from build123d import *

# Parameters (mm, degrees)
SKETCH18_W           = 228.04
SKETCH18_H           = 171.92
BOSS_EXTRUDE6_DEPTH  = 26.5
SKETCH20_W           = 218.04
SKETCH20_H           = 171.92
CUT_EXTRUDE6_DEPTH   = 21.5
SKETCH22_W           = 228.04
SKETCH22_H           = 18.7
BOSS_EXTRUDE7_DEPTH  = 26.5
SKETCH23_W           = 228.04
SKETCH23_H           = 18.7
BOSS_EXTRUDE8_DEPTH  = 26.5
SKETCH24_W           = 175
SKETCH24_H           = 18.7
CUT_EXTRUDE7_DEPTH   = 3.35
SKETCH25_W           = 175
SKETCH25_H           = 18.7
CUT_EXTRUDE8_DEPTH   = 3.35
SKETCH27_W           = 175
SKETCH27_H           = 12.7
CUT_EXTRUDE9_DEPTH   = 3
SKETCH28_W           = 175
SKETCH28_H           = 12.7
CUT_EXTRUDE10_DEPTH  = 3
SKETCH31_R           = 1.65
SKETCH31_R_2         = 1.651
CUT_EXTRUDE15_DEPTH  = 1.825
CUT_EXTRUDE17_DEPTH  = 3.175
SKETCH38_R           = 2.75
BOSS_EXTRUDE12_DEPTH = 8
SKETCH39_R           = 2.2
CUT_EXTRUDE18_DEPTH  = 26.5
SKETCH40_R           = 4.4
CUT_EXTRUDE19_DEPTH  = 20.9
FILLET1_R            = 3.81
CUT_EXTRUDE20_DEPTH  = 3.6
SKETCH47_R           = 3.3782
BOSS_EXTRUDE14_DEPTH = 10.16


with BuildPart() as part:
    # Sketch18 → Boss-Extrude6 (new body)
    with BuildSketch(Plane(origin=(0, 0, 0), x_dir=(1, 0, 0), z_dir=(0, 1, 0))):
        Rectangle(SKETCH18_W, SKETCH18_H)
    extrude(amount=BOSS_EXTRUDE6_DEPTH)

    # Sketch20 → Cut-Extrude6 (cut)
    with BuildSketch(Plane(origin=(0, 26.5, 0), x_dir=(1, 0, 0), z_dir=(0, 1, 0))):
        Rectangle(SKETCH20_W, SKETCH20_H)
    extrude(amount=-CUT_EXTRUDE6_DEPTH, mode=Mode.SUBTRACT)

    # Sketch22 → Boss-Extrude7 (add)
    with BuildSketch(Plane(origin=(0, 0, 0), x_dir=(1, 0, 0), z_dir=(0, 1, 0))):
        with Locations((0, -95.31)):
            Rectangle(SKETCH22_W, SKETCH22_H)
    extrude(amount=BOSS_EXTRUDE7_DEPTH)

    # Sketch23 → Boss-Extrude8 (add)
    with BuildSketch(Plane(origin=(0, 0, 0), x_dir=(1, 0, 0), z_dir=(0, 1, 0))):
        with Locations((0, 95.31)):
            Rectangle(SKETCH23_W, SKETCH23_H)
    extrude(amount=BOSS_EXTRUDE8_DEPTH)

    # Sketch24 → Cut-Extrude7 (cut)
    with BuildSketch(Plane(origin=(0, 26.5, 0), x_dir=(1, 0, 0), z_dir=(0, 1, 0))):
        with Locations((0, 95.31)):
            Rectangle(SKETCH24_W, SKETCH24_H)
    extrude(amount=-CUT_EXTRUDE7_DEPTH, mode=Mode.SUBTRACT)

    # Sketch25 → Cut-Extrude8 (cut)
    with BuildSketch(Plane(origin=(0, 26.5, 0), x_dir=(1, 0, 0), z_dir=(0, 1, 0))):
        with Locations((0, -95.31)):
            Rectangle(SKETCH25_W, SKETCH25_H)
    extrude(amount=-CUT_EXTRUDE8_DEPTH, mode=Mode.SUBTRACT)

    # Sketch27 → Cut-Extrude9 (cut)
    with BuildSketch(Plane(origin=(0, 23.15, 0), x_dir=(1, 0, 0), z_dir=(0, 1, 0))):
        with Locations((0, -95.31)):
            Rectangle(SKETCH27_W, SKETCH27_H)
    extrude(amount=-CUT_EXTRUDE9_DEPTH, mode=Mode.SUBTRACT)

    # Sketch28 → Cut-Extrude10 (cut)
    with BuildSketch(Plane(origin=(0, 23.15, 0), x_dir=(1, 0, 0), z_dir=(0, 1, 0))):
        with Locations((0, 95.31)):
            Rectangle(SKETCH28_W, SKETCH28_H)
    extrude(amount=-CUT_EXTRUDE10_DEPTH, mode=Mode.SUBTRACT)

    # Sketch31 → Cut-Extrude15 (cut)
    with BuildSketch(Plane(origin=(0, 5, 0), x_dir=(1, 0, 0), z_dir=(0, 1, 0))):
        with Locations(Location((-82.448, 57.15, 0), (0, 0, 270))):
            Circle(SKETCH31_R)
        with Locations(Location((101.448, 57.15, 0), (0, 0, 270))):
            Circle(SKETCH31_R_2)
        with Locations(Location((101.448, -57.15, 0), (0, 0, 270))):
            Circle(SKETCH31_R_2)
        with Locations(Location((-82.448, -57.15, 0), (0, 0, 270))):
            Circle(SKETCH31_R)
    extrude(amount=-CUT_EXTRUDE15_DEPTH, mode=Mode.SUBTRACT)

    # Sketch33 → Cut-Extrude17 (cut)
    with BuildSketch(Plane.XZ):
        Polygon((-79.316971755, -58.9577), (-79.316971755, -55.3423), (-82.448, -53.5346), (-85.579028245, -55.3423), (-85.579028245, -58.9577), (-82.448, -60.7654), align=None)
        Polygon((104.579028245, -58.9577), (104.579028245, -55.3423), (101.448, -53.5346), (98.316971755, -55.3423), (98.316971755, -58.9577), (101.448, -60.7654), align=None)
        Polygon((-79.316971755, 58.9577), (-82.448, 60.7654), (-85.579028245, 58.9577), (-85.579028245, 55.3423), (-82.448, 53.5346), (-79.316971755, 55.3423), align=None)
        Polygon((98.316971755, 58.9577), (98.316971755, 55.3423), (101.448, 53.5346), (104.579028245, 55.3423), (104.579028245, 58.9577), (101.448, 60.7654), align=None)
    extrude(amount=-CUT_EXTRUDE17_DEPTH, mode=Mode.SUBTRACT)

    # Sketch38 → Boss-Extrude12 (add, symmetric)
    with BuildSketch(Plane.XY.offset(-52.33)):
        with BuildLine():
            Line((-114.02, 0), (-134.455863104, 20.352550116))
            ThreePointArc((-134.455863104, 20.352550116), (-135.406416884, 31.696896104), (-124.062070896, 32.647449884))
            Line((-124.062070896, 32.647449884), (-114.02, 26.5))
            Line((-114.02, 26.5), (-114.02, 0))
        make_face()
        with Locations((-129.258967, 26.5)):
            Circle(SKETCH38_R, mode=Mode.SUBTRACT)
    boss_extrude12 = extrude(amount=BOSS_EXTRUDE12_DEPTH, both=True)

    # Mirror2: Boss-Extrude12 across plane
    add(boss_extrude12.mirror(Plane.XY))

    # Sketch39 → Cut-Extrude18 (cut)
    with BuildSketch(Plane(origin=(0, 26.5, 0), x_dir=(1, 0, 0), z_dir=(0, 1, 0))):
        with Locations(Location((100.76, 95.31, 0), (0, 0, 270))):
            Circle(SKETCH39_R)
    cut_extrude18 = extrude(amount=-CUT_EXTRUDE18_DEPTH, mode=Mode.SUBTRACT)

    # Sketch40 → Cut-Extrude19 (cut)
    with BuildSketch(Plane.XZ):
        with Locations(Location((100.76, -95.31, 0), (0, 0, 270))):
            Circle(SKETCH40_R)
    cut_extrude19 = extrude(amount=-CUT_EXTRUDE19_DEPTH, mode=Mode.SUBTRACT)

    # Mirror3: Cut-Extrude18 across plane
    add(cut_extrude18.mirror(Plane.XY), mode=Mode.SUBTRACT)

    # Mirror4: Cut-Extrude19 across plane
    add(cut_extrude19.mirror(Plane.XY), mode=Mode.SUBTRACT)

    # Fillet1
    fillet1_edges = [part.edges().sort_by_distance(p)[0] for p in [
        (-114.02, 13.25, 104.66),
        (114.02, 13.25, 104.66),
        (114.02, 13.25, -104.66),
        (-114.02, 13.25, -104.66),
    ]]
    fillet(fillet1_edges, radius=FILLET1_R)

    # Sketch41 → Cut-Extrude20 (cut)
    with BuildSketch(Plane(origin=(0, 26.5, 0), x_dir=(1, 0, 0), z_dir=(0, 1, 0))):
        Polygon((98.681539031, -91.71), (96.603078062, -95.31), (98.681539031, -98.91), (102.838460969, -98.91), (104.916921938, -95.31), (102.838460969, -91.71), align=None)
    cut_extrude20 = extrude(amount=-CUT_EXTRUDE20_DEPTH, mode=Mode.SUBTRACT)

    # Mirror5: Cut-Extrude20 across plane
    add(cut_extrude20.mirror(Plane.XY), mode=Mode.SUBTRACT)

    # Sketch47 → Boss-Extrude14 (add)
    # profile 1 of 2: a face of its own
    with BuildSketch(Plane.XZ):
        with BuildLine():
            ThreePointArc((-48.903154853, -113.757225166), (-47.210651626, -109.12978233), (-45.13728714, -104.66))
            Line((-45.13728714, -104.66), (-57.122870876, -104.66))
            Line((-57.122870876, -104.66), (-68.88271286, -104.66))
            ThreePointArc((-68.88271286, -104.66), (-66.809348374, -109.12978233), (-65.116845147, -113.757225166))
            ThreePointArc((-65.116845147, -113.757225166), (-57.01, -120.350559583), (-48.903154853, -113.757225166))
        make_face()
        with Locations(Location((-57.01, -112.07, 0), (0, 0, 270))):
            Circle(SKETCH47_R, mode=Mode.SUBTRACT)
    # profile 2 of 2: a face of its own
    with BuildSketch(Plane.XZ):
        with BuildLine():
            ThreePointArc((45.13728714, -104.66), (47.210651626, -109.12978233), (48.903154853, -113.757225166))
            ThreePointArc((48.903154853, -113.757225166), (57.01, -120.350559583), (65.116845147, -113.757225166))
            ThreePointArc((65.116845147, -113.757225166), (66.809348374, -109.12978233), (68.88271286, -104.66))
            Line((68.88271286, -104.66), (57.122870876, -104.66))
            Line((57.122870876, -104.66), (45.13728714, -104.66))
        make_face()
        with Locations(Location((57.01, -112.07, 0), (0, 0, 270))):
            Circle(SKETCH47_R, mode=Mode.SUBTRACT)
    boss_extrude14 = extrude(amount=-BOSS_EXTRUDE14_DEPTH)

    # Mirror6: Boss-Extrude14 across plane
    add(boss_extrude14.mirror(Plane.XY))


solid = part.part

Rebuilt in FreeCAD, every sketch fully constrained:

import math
import FreeCAD as App
import Part
import Sketcher
Q = App.Units.Quantity


def edges_at(feature, points):
    """Names of the edges that pass closest to the given points."""
    edges = feature.Shape.Edges
    near = lambda p: min(range(len(edges)), key=lambda i: edges[i].distToShape(Part.Vertex(*p))[0])
    return sorted({f"Edge{near(p) + 1}" for p in points})

doc = App.newDocument("Part")
body = doc.addObject("PartDesign::Body", "Body")

sketch1 = body.newObject("Sketcher::SketchObject", "Sketch")
sketch1.AttachmentSupport = (doc.getObject("XZ_Plane"), [""])
sketch1.MapMode = "FlatFace"
sketch1.addGeometry([
    Part.LineSegment(App.Vector(-114.02, -85.96, 0), App.Vector(-114.02, 85.96, 0)),
    Part.LineSegment(App.Vector(-114.02, 85.96, 0), App.Vector(114.02, 85.96, 0)),
    Part.LineSegment(App.Vector(114.02, 85.96, 0), App.Vector(114.02, -85.96, 0)),
    Part.LineSegment(App.Vector(114.02, -85.96, 0), App.Vector(-114.02, -85.96, 0)),
], False)
sketch1.addConstraint([
    Sketcher.Constraint("Coincident", 0, 2, 1, 1),
    Sketcher.Constraint("Coincident", 1, 2, 2, 1),
    Sketcher.Constraint("Coincident", 2, 2, 3, 1),
    Sketcher.Constraint("Coincident", 3, 2, 0, 1),
    Sketcher.Constraint("Vertical", 0),
    Sketcher.Constraint("Horizontal", 1),
    Sketcher.Constraint("Vertical", 2),
    Sketcher.Constraint("Horizontal", 3),
    Sketcher.Constraint("Symmetric", 0, 2, 2, 2, -1, 1),
    Sketcher.Constraint("DistanceX", 1, 1, 1, 2, 228.04),
    Sketcher.Constraint("DistanceY", 0, 1, 0, 2, 171.92),
])
pad1 = body.newObject("PartDesign::Pad", "Pad")
pad1.Profile = sketch1
pad1.Length = 26.5
pad1.Reversed = True

sketch2 = body.newObject("Sketcher::SketchObject", "Sketch001")
sketch2.AttachmentSupport = (doc.getObject("XZ_Plane"), [""])
sketch2.MapMode = "FlatFace"
sketch2.AttachmentOffset = App.Placement(App.Vector(0, 0, -26.5), App.Rotation())
sketch2.addGeometry([
    Part.LineSegment(App.Vector(-109.02, -85.96, 0), App.Vector(-109.02, 85.96, 0)),
    Part.LineSegment(App.Vector(-109.02, 85.96, 0), App.Vector(109.02, 85.96, 0)),
    Part.LineSegment(App.Vector(109.02, 85.96, 0), App.Vector(109.02, -85.96, 0)),
    Part.LineSegment(App.Vector(109.02, -85.96, 0), App.Vector(-109.02, -85.96, 0)),
], False)
sketch2.addConstraint([
    Sketcher.Constraint("Coincident", 0, 2, 1, 1),
    Sketcher.Constraint("Coincident", 1, 2, 2, 1),
    Sketcher.Constraint("Coincident", 2, 2, 3, 1),
    Sketcher.Constraint("Coincident", 3, 2, 0, 1),
    Sketcher.Constraint("Vertical", 0),
    Sketcher.Constraint("Horizontal", 1),
    Sketcher.Constraint("Vertical", 2),
    Sketcher.Constraint("Horizontal", 3),
    Sketcher.Constraint("Symmetric", 0, 2, 2, 2, -1, 1),
    Sketcher.Constraint("DistanceX", 1, 1, 1, 2, 218.04),
    Sketcher.Constraint("DistanceY", 0, 1, 0, 2, 171.92),
])
pocket1 = body.newObject("PartDesign::Pocket", "Pocket")
pocket1.Profile = sketch2
pocket1.Length = 21.5
pocket1.Reversed = True

sketch3 = body.newObject("Sketcher::SketchObject", "Sketch002")
sketch3.AttachmentSupport = (doc.getObject("XZ_Plane"), [""])
sketch3.MapMode = "FlatFace"
sketch3.addGeometry([
    Part.LineSegment(App.Vector(-114.02, 85.96, 0), App.Vector(-114.02, 104.66, 0)),
    Part.LineSegment(App.Vector(-114.02, 104.66, 0), App.Vector(114.02, 104.66, 0)),
    Part.LineSegment(App.Vector(114.02, 104.66, 0), App.Vector(114.02, 85.96, 0)),
    Part.LineSegment(App.Vector(114.02, 85.96, 0), App.Vector(-114.02, 85.96, 0)),
], False)
sketch3.addConstraint([
    Sketcher.Constraint("Coincident", 0, 2, 1, 1),
    Sketcher.Constraint("Coincident", 1, 2, 2, 1),
    Sketcher.Constraint("Coincident", 2, 2, 3, 1),
    Sketcher.Constraint("Coincident", 3, 2, 0, 1),
    Sketcher.Constraint("Vertical", 0),
    Sketcher.Constraint("Horizontal", 1),
    Sketcher.Constraint("Vertical", 2),
    Sketcher.Constraint("Horizontal", 3),
    Sketcher.Constraint("DistanceY", 0, 1, 0, 2, 18.7),
    Sketcher.Constraint("DistanceX", 1, 1, 1, 2, 228.04),
    Sketcher.Constraint("DistanceX", 0, 2, -1, 1, 114.02),
    Sketcher.Constraint("DistanceY", -1, 1, 0, 2, 104.66),
])
pad2 = body.newObject("PartDesign::Pad", "Pad001")
pad2.Profile = sketch3
pad2.Length = 26.5
pad2.Reversed = True

sketch4 = body.newObject("Sketcher::SketchObject", "Sketch003")
sketch4.AttachmentSupport = (doc.getObject("XZ_Plane"), [""])
sketch4.MapMode = "FlatFace"
sketch4.addGeometry([
    Part.LineSegment(App.Vector(-114.02, -104.66, 0), App.Vector(-114.02, -85.96, 0)),
    Part.LineSegment(App.Vector(-114.02, -85.96, 0), App.Vector(114.02, -85.96, 0)),
    Part.LineSegment(App.Vector(114.02, -85.96, 0), App.Vector(114.02, -104.66, 0)),
    Part.LineSegment(App.Vector(114.02, -104.66, 0), App.Vector(-114.02, -104.66, 0)),
], False)
sketch4.addConstraint([
    Sketcher.Constraint("Coincident", 0, 2, 1, 1),
    Sketcher.Constraint("Coincident", 1, 2, 2, 1),
    Sketcher.Constraint("Coincident", 2, 2, 3, 1),
    Sketcher.Constraint("Coincident", 3, 2, 0, 1),
    Sketcher.Constraint("Vertical", 0),
    Sketcher.Constraint("Horizontal", 1),
    Sketcher.Constraint("Vertical", 2),
    Sketcher.Constraint("Horizontal", 3),
    Sketcher.Constraint("DistanceY", 0, 1, 0, 2, 18.7),
    Sketcher.Constraint("DistanceX", 1, 1, 1, 2, 228.04),
    Sketcher.Constraint("DistanceX", 0, 2, -1, 1, 114.02),
    Sketcher.Constraint("DistanceY", 0, 2, -1, 1, 85.96),
])
pad3 = body.newObject("PartDesign::Pad", "Pad002")
pad3.Profile = sketch4
pad3.Length = 26.5
pad3.Reversed = True

sketch5 = body.newObject("Sketcher::SketchObject", "Sketch004")
sketch5.AttachmentSupport = (doc.getObject("XZ_Plane"), [""])
sketch5.MapMode = "FlatFace"
sketch5.AttachmentOffset = App.Placement(App.Vector(0, 0, -26.5), App.Rotation())
sketch5.addGeometry([
    Part.LineSegment(App.Vector(-87.5, -104.66, 0), App.Vector(-87.5, -85.96, 0)),
    Part.LineSegment(App.Vector(-87.5, -85.96, 0), App.Vector(87.5, -85.96, 0)),
    Part.LineSegment(App.Vector(87.5, -85.96, 0), App.Vector(87.5, -104.66, 0)),
    Part.LineSegment(App.Vector(87.5, -104.66, 0), App.Vector(-87.5, -104.66, 0)),
], False)
sketch5.addConstraint([
    Sketcher.Constraint("Coincident", 0, 2, 1, 1),
    Sketcher.Constraint("Coincident", 1, 2, 2, 1),
    Sketcher.Constraint("Coincident", 2, 2, 3, 1),
    Sketcher.Constraint("Coincident", 3, 2, 0, 1),
    Sketcher.Constraint("Vertical", 0),
    Sketcher.Constraint("Horizontal", 1),
    Sketcher.Constraint("Vertical", 2),
    Sketcher.Constraint("Horizontal", 3),
    Sketcher.Constraint("DistanceX", 1, 1, 1, 2, 175.0),
    Sketcher.Constraint("DistanceY", 0, 1, 0, 2, 18.7),
    Sketcher.Constraint("DistanceX", 0, 2, -1, 1, 87.5),
    Sketcher.Constraint("DistanceY", 0, 2, -1, 1, 85.96),
])
pocket2 = body.newObject("PartDesign::Pocket", "Pocket001")
pocket2.Profile = sketch5
pocket2.Length = 3.35
pocket2.Reversed = True

sketch6 = body.newObject("Sketcher::SketchObject", "Sketch005")
sketch6.AttachmentSupport = (doc.getObject("XZ_Plane"), [""])
sketch6.MapMode = "FlatFace"
sketch6.AttachmentOffset = App.Placement(App.Vector(0, 0, -26.5), App.Rotation())
sketch6.addGeometry([
    Part.LineSegment(App.Vector(-87.5, 85.96, 0), App.Vector(-87.5, 104.66, 0)),
    Part.LineSegment(App.Vector(-87.5, 104.66, 0), App.Vector(87.5, 104.66, 0)),
    Part.LineSegment(App.Vector(87.5, 104.66, 0), App.Vector(87.5, 85.96, 0)),
    Part.LineSegment(App.Vector(87.5, 85.96, 0), App.Vector(-87.5, 85.96, 0)),
], False)
sketch6.addConstraint([
    Sketcher.Constraint("Coincident", 0, 2, 1, 1),
    Sketcher.Constraint("Coincident", 1, 2, 2, 1),
    Sketcher.Constraint("Coincident", 2, 2, 3, 1),
    Sketcher.Constraint("Coincident", 3, 2, 0, 1),
    Sketcher.Constraint("Vertical", 0),
    Sketcher.Constraint("Horizontal", 1),
    Sketcher.Constraint("Vertical", 2),
    Sketcher.Constraint("Horizontal", 3),
    Sketcher.Constraint("DistanceX", 1, 1, 1, 2, 175.0),
    Sketcher.Constraint("DistanceY", 0, 1, 0, 2, 18.7),
    Sketcher.Constraint("DistanceX", 0, 2, -1, 1, 87.5),
    Sketcher.Constraint("DistanceY", -1, 1, 0, 2, 104.66),
])
pocket3 = body.newObject("PartDesign::Pocket", "Pocket002")
pocket3.Profile = sketch6
pocket3.Length = 3.35
pocket3.Reversed = True

sketch7 = body.newObject("Sketcher::SketchObject", "Sketch006")
sketch7.AttachmentSupport = (doc.getObject("XZ_Plane"), [""])
sketch7.MapMode = "FlatFace"
sketch7.AttachmentOffset = App.Placement(App.Vector(0, 0, -23.15), App.Rotation())
sketch7.addGeometry([
    Part.LineSegment(App.Vector(-87.5, 88.96, 0), App.Vector(-87.5, 101.66, 0)),
    Part.LineSegment(App.Vector(-87.5, 101.66, 0), App.Vector(87.5, 101.66, 0)),
    Part.LineSegment(App.Vector(87.5, 101.66, 0), App.Vector(87.5, 88.96, 0)),
    Part.LineSegment(App.Vector(87.5, 88.96, 0), App.Vector(-87.5, 88.96, 0)),
], False)
sketch7.addConstraint([
    Sketcher.Constraint("Coincident", 0, 2, 1, 1),
    Sketcher.Constraint("Coincident", 1, 2, 2, 1),
    Sketcher.Constraint("Coincident", 2, 2, 3, 1),
    Sketcher.Constraint("Coincident", 3, 2, 0, 1),
    Sketcher.Constraint("Vertical", 0),
    Sketcher.Constraint("Horizontal", 1),
    Sketcher.Constraint("Vertical", 2),
    Sketcher.Constraint("Horizontal", 3),
    Sketcher.Constraint("DistanceX", 1, 1, 1, 2, 175.0),
    Sketcher.Constraint("DistanceY", 0, 1, 0, 2, 12.7),
    Sketcher.Constraint("DistanceX", 0, 2, -1, 1, 87.5),
    Sketcher.Constraint("DistanceY", -1, 1, 0, 2, 101.66),
])
pocket4 = body.newObject("PartDesign::Pocket", "Pocket003")
pocket4.Profile = sketch7
pocket4.Length = 3
pocket4.Reversed = True

sketch8 = body.newObject("Sketcher::SketchObject", "Sketch007")
sketch8.AttachmentSupport = (doc.getObject("XZ_Plane"), [""])
sketch8.MapMode = "FlatFace"
sketch8.AttachmentOffset = App.Placement(App.Vector(0, 0, -23.15), App.Rotation())
sketch8.addGeometry([
    Part.LineSegment(App.Vector(-87.5, -101.66, 0), App.Vector(-87.5, -88.96, 0)),
    Part.LineSegment(App.Vector(-87.5, -88.96, 0), App.Vector(87.5, -88.96, 0)),
    Part.LineSegment(App.Vector(87.5, -88.96, 0), App.Vector(87.5, -101.66, 0)),
    Part.LineSegment(App.Vector(87.5, -101.66, 0), App.Vector(-87.5, -101.66, 0)),
], False)
sketch8.addConstraint([
    Sketcher.Constraint("Coincident", 0, 2, 1, 1),
    Sketcher.Constraint("Coincident", 1, 2, 2, 1),
    Sketcher.Constraint("Coincident", 2, 2, 3, 1),
    Sketcher.Constraint("Coincident", 3, 2, 0, 1),
    Sketcher.Constraint("Vertical", 0),
    Sketcher.Constraint("Horizontal", 1),
    Sketcher.Constraint("Vertical", 2),
    Sketcher.Constraint("Horizontal", 3),
    Sketcher.Constraint("DistanceX", 1, 1, 1, 2, 175.0),
    Sketcher.Constraint("DistanceY", 0, 1, 0, 2, 12.7),
    Sketcher.Constraint("DistanceX", 0, 2, -1, 1, 87.5),
    Sketcher.Constraint("DistanceY", 0, 2, -1, 1, 88.96),
])
pocket5 = body.newObject("PartDesign::Pocket", "Pocket004")
pocket5.Profile = sketch8
pocket5.Length = 3
pocket5.Reversed = True

sketch9 = body.newObject("Sketcher::SketchObject", "Sketch008")
sketch9.AttachmentSupport = (doc.getObject("XZ_Plane"), [""])
sketch9.MapMode = "FlatFace"
sketch9.AttachmentOffset = App.Placement(App.Vector(0, 0, -5), App.Rotation())
sketch9.addGeometry([
    Part.Circle(App.Vector(-82.448, -57.15, 0), App.Vector(0, 0, 1), 1.65),
    Part.Circle(App.Vector(101.448, -57.15, 0), App.Vector(0, 0, 1), 1.651),
    Part.Circle(App.Vector(101.448, 57.15, 0), App.Vector(0, 0, 1), 1.651),
    Part.Circle(App.Vector(-82.448, 57.15, 0), App.Vector(0, 0, 1), 1.65),
], False)
sketch9.addConstraint([
    Sketcher.Constraint("Equal", 1, 2),
    Sketcher.Constraint("Equal", 0, 3),
    Sketcher.Constraint("Symmetric", 1, 3, 2, 3, -1),
    Sketcher.Constraint("Symmetric", 0, 3, 3, 3, -1),
    Sketcher.Constraint("Horizontal", 0, 3, 1, 3),
    Sketcher.Constraint("Diameter", 0, 3.3),
    Sketcher.Constraint("Diameter", 1, 3.302),
    Sketcher.Constraint("DistanceY", 1, 3, 2, 3, 114.3),
    Sketcher.Constraint("DistanceX", 0, 3, -1, 1, 82.448),
    Sketcher.Constraint("DistanceX", -1, 1, 1, 3, 101.448),
])
pocket6 = body.newObject("PartDesign::Pocket", "Pocket005")
pocket6.Profile = sketch9
pocket6.Length = 1.825
pocket6.Reversed = True

sketch10 = body.newObject("Sketcher::SketchObject", "Sketch009")
sketch10.AttachmentSupport = (doc.getObject("XZ_Plane"), [""])
sketch10.MapMode = "FlatFace"
sketch10.addGeometry([
    Part.LineSegment(App.Vector(-79.316972, -58.9577, 0), App.Vector(-79.316972, -55.3423, 0)),
    Part.LineSegment(App.Vector(-79.316972, -55.3423, 0), App.Vector(-82.448, -53.5346, 0)),
    Part.LineSegment(App.Vector(-82.448, -53.5346, 0), App.Vector(-85.579028, -55.3423, 0)),
    Part.LineSegment(App.Vector(-85.579028, -55.3423, 0), App.Vector(-85.579028, -58.9577, 0)),
    Part.LineSegment(App.Vector(-85.579028, -58.9577, 0), App.Vector(-82.448, -60.7654, 0)),
    Part.LineSegment(App.Vector(-82.448, -60.7654, 0), App.Vector(-79.316972, -58.9577, 0)),
    Part.LineSegment(App.Vector(104.579028, -58.9577, 0), App.Vector(104.579028, -55.3423, 0)),
    Part.LineSegment(App.Vector(104.579028, -55.3423, 0), App.Vector(101.448, -53.5346, 0)),
    Part.LineSegment(App.Vector(101.448, -53.5346, 0), App.Vector(98.316972, -55.3423, 0)),
    Part.LineSegment(App.Vector(98.316972, -55.3423, 0), App.Vector(98.316972, -58.9577, 0)),
    Part.LineSegment(App.Vector(98.316972, -58.9577, 0), App.Vector(101.448, -60.7654, 0)),
    Part.LineSegment(App.Vector(101.448, -60.7654, 0), App.Vector(104.579028, -58.9577, 0)),
    Part.LineSegment(App.Vector(-79.316972, 58.9577, 0), App.Vector(-82.448, 60.7654, 0)),
    Part.LineSegment(App.Vector(-82.448, 60.7654, 0), App.Vector(-85.579028, 58.9577, 0)),
    Part.LineSegment(App.Vector(-85.579028, 58.9577, 0), App.Vector(-85.579028, 55.3423, 0)),
    Part.LineSegment(App.Vector(-85.579028, 55.3423, 0), App.Vector(-82.448, 53.5346, 0)),
    Part.LineSegment(App.Vector(-82.448, 53.5346, 0), App.Vector(-79.316972, 55.3423, 0)),
    Part.LineSegment(App.Vector(-79.316972, 55.3423, 0), App.Vector(-79.316972, 58.9577, 0)),
    Part.LineSegment(App.Vector(98.316972, 58.9577, 0), App.Vector(98.316972, 55.3423, 0)),
    Part.LineSegment(App.Vector(98.316972, 55.3423, 0), App.Vector(101.448, 53.5346, 0)),
    Part.LineSegment(App.Vector(101.448, 53.5346, 0), App.Vector(104.579028, 55.3423, 0)),
    Part.LineSegment(App.Vector(104.579028, 55.3423, 0), App.Vector(104.579028, 58.9577, 0)),
    Part.LineSegment(App.Vector(104.579028, 58.9577, 0), App.Vector(101.448, 60.7654, 0)),
    Part.LineSegment(App.Vector(101.448, 60.7654, 0), App.Vector(98.316972, 58.9577, 0)),
], False)
sketch10.addConstraint([
    Sketcher.Constraint("Coincident", 0, 2, 1, 1),
    Sketcher.Constraint("Coincident", 1, 2, 2, 1),
    Sketcher.Constraint("Coincident", 2, 2, 3, 1),
    Sketcher.Constraint("Coincident", 3, 2, 4, 1),
    Sketcher.Constraint("Coincident", 4, 2, 5, 1),
    Sketcher.Constraint("Coincident", 5, 2, 0, 1),
    Sketcher.Constraint("Coincident", 6, 2, 7, 1),
    Sketcher.Constraint("Coincident", 7, 2, 8, 1),
    Sketcher.Constraint("Coincident", 8, 2, 9, 1),
    Sketcher.Constraint("Coincident", 9, 2, 10, 1),
    Sketcher.Constraint("Coincident", 10, 2, 11, 1),
    Sketcher.Constraint("Coincident", 11, 2, 6, 1),
    Sketcher.Constraint("Coincident", 12, 2, 13, 1),
    Sketcher.Constraint("Coincident", 13, 2, 14, 1),
    Sketcher.Constraint("Coincident", 14, 2, 15, 1),
    Sketcher.Constraint("Coincident", 15, 2, 16, 1),
    Sketcher.Constraint("Coincident", 16, 2, 17, 1),
    Sketcher.Constraint("Coincident", 17, 2, 12, 1),
    Sketcher.Constraint("Coincident", 18, 2, 19, 1),
    Sketcher.Constraint("Coincident", 19, 2, 20, 1),
    Sketcher.Constraint("Coincident", 20, 2, 21, 1),
    Sketcher.Constraint("Coincident", 21, 2, 22, 1),
    Sketcher.Constraint("Coincident", 22, 2, 23, 1),
    Sketcher.Constraint("Coincident", 23, 2, 18, 1),
    Sketcher.Constraint("Vertical", 0),
    Sketcher.Constraint("Vertical", 3),
    Sketcher.Constraint("Vertical", 6),
    Sketcher.Constraint("Vertical", 9),
    Sketcher.Constraint("Vertical", 14),
    Sketcher.Constraint("Vertical", 17),
    Sketcher.Constraint("Vertical", 18),
    Sketcher.Constraint("Vertical", 21),
    Sketcher.Constraint("Symmetric", 4, 2, 12, 2, -1),
    Sketcher.Constraint("Symmetric", 3, 2, 13, 2, -1),
    Sketcher.Constraint("Symmetric", 1, 2, 15, 2, -1),
    Sketcher.Constraint("Symmetric", 0, 2, 16, 2, -1),
    Sketcher.Constraint("Symmetric", 8, 2, 18, 2, -1),
    Sketcher.Constraint("Symmetric", 7, 2, 19, 2, -1),
    Sketcher.Constraint("Symmetric", 6, 2, 20, 2, -1),
    Sketcher.Constraint("Symmetric", 10, 2, 22, 2, -1),
    Sketcher.Constraint("Parallel", 1, 4),
    Sketcher.Constraint("Parallel", 2, 5),
    Sketcher.Constraint("Parallel", 4, 7),
    Sketcher.Constraint("Parallel", 5, 8),
    Sketcher.Constraint("Parallel", 7, 10),
    Sketcher.Constraint("Parallel", 8, 11),
    Sketcher.Constraint("Parallel", 10, 12),
    Sketcher.Constraint("Parallel", 11, 13),
    Sketcher.Constraint("Parallel", 12, 15),
    Sketcher.Constraint("Parallel", 19, 22),
    Sketcher.Constraint("Parallel", 20, 23),
    Sketcher.Constraint("Horizontal", 0, 2, 2, 2),
    Sketcher.Constraint("Horizontal", 3, 2, 5, 2),
    Sketcher.Constraint("Horizontal", 2, 2, 6, 2),
    Sketcher.Constraint("Horizontal", 1, 2, 7, 2),
    Sketcher.Constraint("Horizontal", 6, 2, 8, 2),
    Sketcher.Constraint("Horizontal", 5, 2, 9, 2),
    Sketcher.Constraint("Horizontal", 4, 2, 10, 2),
    Sketcher.Constraint("Angle", 1, Q("150 deg")),
    Sketcher.Constraint("DistanceY", 1, 2, 12, 2, 114.3),
    Sketcher.Constraint("DistanceY", 0, 1, 0, 2, 3.6154),
    Sketcher.Constraint("DistanceX", 1, 2, -1, 1, 82.448),
    Sketcher.Constraint("DistanceX", -1, 1, 7, 2, 101.448),
    Sketcher.Constraint("Distance", 1, 3.6154),
])
pocket7 = body.newObject("PartDesign::Pocket", "Pocket006")
pocket7.Profile = sketch10
pocket7.Length = 3.175

sketch11 = body.newObject("Sketcher::SketchObject", "Sketch010")
sketch11.AttachmentSupport = (doc.getObject("XY_Plane"), [""])
sketch11.MapMode = "FlatFace"
sketch11.AttachmentOffset = App.Placement(App.Vector(0, 0, -52.33), App.Rotation())
sketch11.addGeometry([
    Part.LineSegment(App.Vector(-134.455863, 20.35255, 0), App.Vector(-114.02, 0, 0)),
    Part.LineSegment(App.Vector(-114.02, 0, 0), App.Vector(-114.02, 26.5, 0)),
    Part.LineSegment(App.Vector(-114.02, 26.5, 0), App.Vector(-124.062071, 32.64745, 0)),
    Part.ArcOfCircle(Part.Circle(App.Vector(-129.258967, 26.5, 0), App.Vector(0, 0, 1), 8.049774), math.radians(49.789681), math.radians(229.789681)),
    Part.Circle(App.Vector(-129.258967, 26.5, 0), App.Vector(0, 0, 1), 2.75),
], False)
sketch11.addConstraint([
    Sketcher.Constraint("Coincident", 0, 2, 1, 1),
    Sketcher.Constraint("Coincident", 1, 2, 2, 1),
    Sketcher.Constraint("Coincident", 2, 2, 3, 1),
    Sketcher.Constraint("Coincident", 3, 2, 0, 1),
    Sketcher.Constraint("Vertical", 1),
    Sketcher.Constraint("Coincident", 4, 3, 3, 3),
    Sketcher.Constraint("PointOnObject", 0, 2, -1),
    Sketcher.Constraint("Horizontal", 4, 3, 1, 2),
    Sketcher.Constraint("Diameter", 4, 5.5),
    Sketcher.Constraint("DistanceY", 1, 1, 1, 2, 26.5),
    Sketcher.Constraint("DistanceX", 0, 2, -1, 1, 114.02),
    Sketcher.Constraint("Radius", 3, 8.049774),
    Sketcher.Constraint("DistanceY", 3, 2, 2, 2, 12.2949),
    Sketcher.Constraint("DistanceX", 2, 2, -1, 1, 124.062071),
    Sketcher.Constraint("DistanceY", -1, 1, 2, 2, 32.64745),
])
pad4 = body.newObject("PartDesign::Pad", "Pad003")
pad4.Profile = sketch11
pad4.Length = 16
pad4.Midplane = True
doc.recompute()

mirrored = body.newObject("PartDesign::Mirrored", "Mirrored")
mirrored.Originals = [pad4]
mirrored.MirrorPlane = (doc.getObject("XY_Plane"), [""])
body.Tip = mirrored

sketch12 = body.newObject("Sketcher::SketchObject", "Sketch011")
sketch12.AttachmentSupport = (doc.getObject("XZ_Plane"), [""])
sketch12.MapMode = "FlatFace"
sketch12.AttachmentOffset = App.Placement(App.Vector(0, 0, -26.5), App.Rotation())
sketch12.addGeometry(Part.Circle(App.Vector(100.76, -95.31, 0), App.Vector(0, 0, 1), 2.2), False)
sketch12.addConstraint([
    Sketcher.Constraint("Diameter", 0, 4.4),
    Sketcher.Constraint("DistanceX", -1, 1, 0, 3, 100.76),
    Sketcher.Constraint("DistanceY", 0, 3, -1, 1, 95.31),
])
pocket8 = body.newObject("PartDesign::Pocket", "Pocket007")
pocket8.Profile = sketch12
pocket8.Length = 26.5
pocket8.Reversed = True

sketch13 = body.newObject("Sketcher::SketchObject", "Sketch012")
sketch13.AttachmentSupport = (doc.getObject("XZ_Plane"), [""])
sketch13.MapMode = "FlatFace"
sketch13.addGeometry(Part.Circle(App.Vector(100.76, -95.31, 0), App.Vector(0, 0, 1), 4.4), False)
sketch13.addConstraint([
    Sketcher.Constraint("Diameter", 0, 8.8),
    Sketcher.Constraint("DistanceX", -1, 1, 0, 3, 100.76),
    Sketcher.Constraint("DistanceY", 0, 3, -1, 1, 95.31),
])
pocket9 = body.newObject("PartDesign::Pocket", "Pocket008")
pocket9.Profile = sketch13
pocket9.Length = 20.9
doc.recompute()

mirrored2 = body.newObject("PartDesign::Mirrored", "Mirrored001")
mirrored2.Originals = [pocket8]
mirrored2.MirrorPlane = (doc.getObject("XY_Plane"), [""])
body.Tip = mirrored2
doc.recompute()

mirrored3 = body.newObject("PartDesign::Mirrored", "Mirrored002")
mirrored3.Originals = [pocket9]
mirrored3.MirrorPlane = (doc.getObject("XY_Plane"), [""])
body.Tip = mirrored3
doc.recompute()

fillet = body.newObject("PartDesign::Fillet", "Fillet")
fillet.Base = (mirrored3, edges_at(mirrored3, [
    (-114.02, 13.25, 104.66),
    (114.02, 13.25, 104.66),
    (114.02, 13.25, -104.66),
    (-114.02, 13.25, -104.66),
]))
fillet.Radius = 3.81

sketch14 = body.newObject("Sketcher::SketchObject", "Sketch013")
sketch14.AttachmentSupport = (doc.getObject("XZ_Plane"), [""])
sketch14.MapMode = "FlatFace"
sketch14.AttachmentOffset = App.Placement(App.Vector(0, 0, -26.5), App.Rotation())
sketch14.addGeometry([
    Part.LineSegment(App.Vector(98.681539, 91.71, 0), App.Vector(96.603078, 95.31, 0)),
    Part.LineSegment(App.Vector(96.603078, 95.31, 0), App.Vector(98.681539, 98.91, 0)),
    Part.LineSegment(App.Vector(98.681539, 98.91, 0), App.Vector(102.838461, 98.91, 0)),
    Part.LineSegment(App.Vector(102.838461, 98.91, 0), App.Vector(104.916922, 95.31, 0)),
    Part.LineSegment(App.Vector(104.916922, 95.31, 0), App.Vector(102.838461, 91.71, 0)),
    Part.LineSegment(App.Vector(102.838461, 91.71, 0), App.Vector(98.681539, 91.71, 0)),
], False)
sketch14.addConstraint([
    Sketcher.Constraint("Coincident", 0, 2, 1, 1),
    Sketcher.Constraint("Coincident", 1, 2, 2, 1),
    Sketcher.Constraint("Coincident", 2, 2, 3, 1),
    Sketcher.Constraint("Coincident", 3, 2, 4, 1),
    Sketcher.Constraint("Coincident", 4, 2, 5, 1),
    Sketcher.Constraint("Coincident", 5, 2, 0, 1),
    Sketcher.Constraint("Horizontal", 2),
    Sketcher.Constraint("Horizontal", 5),
    Sketcher.Constraint("Parallel", 0, 3),
    Sketcher.Constraint("Parallel", 1, 4),
    Sketcher.Constraint("Horizontal", 0, 2, 3, 2),
    Sketcher.Constraint("Vertical", 2, 2, 4, 2),
    Sketcher.Constraint("Vertical", 1, 2, 5, 2),
    Sketcher.Constraint("Angle", 0, Q("120 deg")),
    Sketcher.Constraint("DistanceY", 0, 2, 1, 2, 3.6),
    Sketcher.Constraint("DistanceY", -1, 1, 0, 2, 95.31),
    Sketcher.Constraint("DistanceX", 2, 1, 2, 2, 4.156922),
    Sketcher.Constraint("DistanceX", -1, 1, 0, 2, 96.603078),
])
pocket10 = body.newObject("PartDesign::Pocket", "Pocket009")
pocket10.Profile = sketch14
pocket10.Length = 3.6
pocket10.Reversed = True
doc.recompute()

mirrored4 = body.newObject("PartDesign::Mirrored", "Mirrored003")
mirrored4.Originals = [pocket10]
mirrored4.MirrorPlane = (doc.getObject("XY_Plane"), [""])
body.Tip = mirrored4

sketch15 = body.newObject("Sketcher::SketchObject", "Sketch014")
sketch15.AttachmentSupport = (doc.getObject("XZ_Plane"), [""])
sketch15.MapMode = "FlatFace"
sketch15.addGeometry([
    Part.ArcOfCircle(Part.Circle(App.Vector(7.208483, -131.65701, 0), App.Vector(0, 0, 1), 58.897523), math.radians(152.717857), math.radians(162.307157)),
    Part.LineSegment(App.Vector(-45.137287, -104.66, 0), App.Vector(-68.882713, -104.66, 0)),
    Part.ArcOfCircle(Part.Circle(App.Vector(-121.228483, -131.65701, 0), App.Vector(0, 0, 1), 58.897523), math.radians(17.692843), math.radians(27.282143)),
    Part.ArcOfCircle(Part.Circle(App.Vector(-57.01, -112.07, 0), App.Vector(0, 0, 1), 8.28056), math.radians(-168.243233), math.radians(-11.756767)),
    Part.Circle(App.Vector(-57.01, -112.07, 0), App.Vector(0, 0, 1), 3.3782),
    Part.ArcOfCircle(Part.Circle(App.Vector(-7.208483, -131.65701, 0), App.Vector(0, 0, 1), 58.897523), math.radians(17.692843), math.radians(27.282143)),
    Part.ArcOfCircle(Part.Circle(App.Vector(57.01, -112.07, 0), App.Vector(0, 0, 1), 8.28056), math.radians(-168.243233), math.radians(-11.756767)),
    Part.ArcOfCircle(Part.Circle(App.Vector(121.228483, -131.65701, 0), App.Vector(0, 0, 1), 58.897523), math.radians(152.717857), math.radians(162.307157)),
    Part.LineSegment(App.Vector(68.882713, -104.66, 0), App.Vector(45.137287, -104.66, 0)),
    Part.Circle(App.Vector(57.01, -112.07, 0), App.Vector(0, 0, 1), 3.3782),
], False)
sketch15.addConstraint([
    Sketcher.Constraint("Coincident", 0, 1, 1, 1),
    Sketcher.Constraint("Coincident", 1, 2, 2, 2),
    Sketcher.Constraint("Coincident", 2, 1, 3, 1),
    Sketcher.Constraint("Coincident", 3, 2, 0, 2),
    Sketcher.Constraint("Coincident", 5, 1, 6, 1),
    Sketcher.Constraint("Coincident", 6, 2, 7, 2),
    Sketcher.Constraint("Coincident", 7, 1, 8, 1),
    Sketcher.Constraint("Coincident", 8, 2, 5, 2),
    Sketcher.Constraint("Horizontal", 1),
    Sketcher.Constraint("Horizontal", 8),
    Sketcher.Constraint("Coincident", 4, 3, 3, 3),
    Sketcher.Constraint("Coincident", 9, 3, 6, 3),
    Sketcher.Constraint("Equal", 0, 2),
    Sketcher.Constraint("Equal", 2, 5),
    Sketcher.Constraint("Equal", 3, 6),
    Sketcher.Constraint("Equal", 5, 7),
    Sketcher.Constraint("Equal", 4, 9),
    Sketcher.Constraint("Symmetric", 0, 3, 5, 3, -2),
    Sketcher.Constraint("Symmetric", 3, 3, 6, 3, -2),
    Sketcher.Constraint("Symmetric", 2, 3, 7, 3, -2),
    Sketcher.Constraint("Horizontal", 0, 3, 2, 3),
    Sketcher.Constraint("Horizontal", 2, 1, 3, 2),
    Sketcher.Constraint("Horizontal", 1, 2, 7, 1),
    Sketcher.Constraint("Diameter", 4, 6.7564),
    Sketcher.Constraint("DistanceX", 3, 3, -1, 1, 57.01),
    Sketcher.Constraint("DistanceY", 3, 3, -1, 1, 112.07),
    Sketcher.Constraint("DistanceY", 0, 1, -1, 1, 104.66),
    Sketcher.Constraint("Radius", 3, 8.28056),
    Sketcher.Constraint("Radius", 0, 58.897523),
    Sketcher.Constraint("DistanceX", 1, 2, 1, 1, 23.745426),
    Sketcher.Constraint("DistanceY", 0, 3, -1, 1, 131.65701),
])
pad5 = body.newObject("PartDesign::Pad", "Pad004")
pad5.Profile = sketch15
pad5.Length = 10.16
pad5.Reversed = True
doc.recompute()

mirrored5 = body.newObject("PartDesign::Mirrored", "Mirrored004")
mirrored5.Originals = [pad5]
mirrored5.MirrorPlane = (doc.getObject("XY_Plane"), [""])
body.Tip = mirrored5

doc.recompute()
